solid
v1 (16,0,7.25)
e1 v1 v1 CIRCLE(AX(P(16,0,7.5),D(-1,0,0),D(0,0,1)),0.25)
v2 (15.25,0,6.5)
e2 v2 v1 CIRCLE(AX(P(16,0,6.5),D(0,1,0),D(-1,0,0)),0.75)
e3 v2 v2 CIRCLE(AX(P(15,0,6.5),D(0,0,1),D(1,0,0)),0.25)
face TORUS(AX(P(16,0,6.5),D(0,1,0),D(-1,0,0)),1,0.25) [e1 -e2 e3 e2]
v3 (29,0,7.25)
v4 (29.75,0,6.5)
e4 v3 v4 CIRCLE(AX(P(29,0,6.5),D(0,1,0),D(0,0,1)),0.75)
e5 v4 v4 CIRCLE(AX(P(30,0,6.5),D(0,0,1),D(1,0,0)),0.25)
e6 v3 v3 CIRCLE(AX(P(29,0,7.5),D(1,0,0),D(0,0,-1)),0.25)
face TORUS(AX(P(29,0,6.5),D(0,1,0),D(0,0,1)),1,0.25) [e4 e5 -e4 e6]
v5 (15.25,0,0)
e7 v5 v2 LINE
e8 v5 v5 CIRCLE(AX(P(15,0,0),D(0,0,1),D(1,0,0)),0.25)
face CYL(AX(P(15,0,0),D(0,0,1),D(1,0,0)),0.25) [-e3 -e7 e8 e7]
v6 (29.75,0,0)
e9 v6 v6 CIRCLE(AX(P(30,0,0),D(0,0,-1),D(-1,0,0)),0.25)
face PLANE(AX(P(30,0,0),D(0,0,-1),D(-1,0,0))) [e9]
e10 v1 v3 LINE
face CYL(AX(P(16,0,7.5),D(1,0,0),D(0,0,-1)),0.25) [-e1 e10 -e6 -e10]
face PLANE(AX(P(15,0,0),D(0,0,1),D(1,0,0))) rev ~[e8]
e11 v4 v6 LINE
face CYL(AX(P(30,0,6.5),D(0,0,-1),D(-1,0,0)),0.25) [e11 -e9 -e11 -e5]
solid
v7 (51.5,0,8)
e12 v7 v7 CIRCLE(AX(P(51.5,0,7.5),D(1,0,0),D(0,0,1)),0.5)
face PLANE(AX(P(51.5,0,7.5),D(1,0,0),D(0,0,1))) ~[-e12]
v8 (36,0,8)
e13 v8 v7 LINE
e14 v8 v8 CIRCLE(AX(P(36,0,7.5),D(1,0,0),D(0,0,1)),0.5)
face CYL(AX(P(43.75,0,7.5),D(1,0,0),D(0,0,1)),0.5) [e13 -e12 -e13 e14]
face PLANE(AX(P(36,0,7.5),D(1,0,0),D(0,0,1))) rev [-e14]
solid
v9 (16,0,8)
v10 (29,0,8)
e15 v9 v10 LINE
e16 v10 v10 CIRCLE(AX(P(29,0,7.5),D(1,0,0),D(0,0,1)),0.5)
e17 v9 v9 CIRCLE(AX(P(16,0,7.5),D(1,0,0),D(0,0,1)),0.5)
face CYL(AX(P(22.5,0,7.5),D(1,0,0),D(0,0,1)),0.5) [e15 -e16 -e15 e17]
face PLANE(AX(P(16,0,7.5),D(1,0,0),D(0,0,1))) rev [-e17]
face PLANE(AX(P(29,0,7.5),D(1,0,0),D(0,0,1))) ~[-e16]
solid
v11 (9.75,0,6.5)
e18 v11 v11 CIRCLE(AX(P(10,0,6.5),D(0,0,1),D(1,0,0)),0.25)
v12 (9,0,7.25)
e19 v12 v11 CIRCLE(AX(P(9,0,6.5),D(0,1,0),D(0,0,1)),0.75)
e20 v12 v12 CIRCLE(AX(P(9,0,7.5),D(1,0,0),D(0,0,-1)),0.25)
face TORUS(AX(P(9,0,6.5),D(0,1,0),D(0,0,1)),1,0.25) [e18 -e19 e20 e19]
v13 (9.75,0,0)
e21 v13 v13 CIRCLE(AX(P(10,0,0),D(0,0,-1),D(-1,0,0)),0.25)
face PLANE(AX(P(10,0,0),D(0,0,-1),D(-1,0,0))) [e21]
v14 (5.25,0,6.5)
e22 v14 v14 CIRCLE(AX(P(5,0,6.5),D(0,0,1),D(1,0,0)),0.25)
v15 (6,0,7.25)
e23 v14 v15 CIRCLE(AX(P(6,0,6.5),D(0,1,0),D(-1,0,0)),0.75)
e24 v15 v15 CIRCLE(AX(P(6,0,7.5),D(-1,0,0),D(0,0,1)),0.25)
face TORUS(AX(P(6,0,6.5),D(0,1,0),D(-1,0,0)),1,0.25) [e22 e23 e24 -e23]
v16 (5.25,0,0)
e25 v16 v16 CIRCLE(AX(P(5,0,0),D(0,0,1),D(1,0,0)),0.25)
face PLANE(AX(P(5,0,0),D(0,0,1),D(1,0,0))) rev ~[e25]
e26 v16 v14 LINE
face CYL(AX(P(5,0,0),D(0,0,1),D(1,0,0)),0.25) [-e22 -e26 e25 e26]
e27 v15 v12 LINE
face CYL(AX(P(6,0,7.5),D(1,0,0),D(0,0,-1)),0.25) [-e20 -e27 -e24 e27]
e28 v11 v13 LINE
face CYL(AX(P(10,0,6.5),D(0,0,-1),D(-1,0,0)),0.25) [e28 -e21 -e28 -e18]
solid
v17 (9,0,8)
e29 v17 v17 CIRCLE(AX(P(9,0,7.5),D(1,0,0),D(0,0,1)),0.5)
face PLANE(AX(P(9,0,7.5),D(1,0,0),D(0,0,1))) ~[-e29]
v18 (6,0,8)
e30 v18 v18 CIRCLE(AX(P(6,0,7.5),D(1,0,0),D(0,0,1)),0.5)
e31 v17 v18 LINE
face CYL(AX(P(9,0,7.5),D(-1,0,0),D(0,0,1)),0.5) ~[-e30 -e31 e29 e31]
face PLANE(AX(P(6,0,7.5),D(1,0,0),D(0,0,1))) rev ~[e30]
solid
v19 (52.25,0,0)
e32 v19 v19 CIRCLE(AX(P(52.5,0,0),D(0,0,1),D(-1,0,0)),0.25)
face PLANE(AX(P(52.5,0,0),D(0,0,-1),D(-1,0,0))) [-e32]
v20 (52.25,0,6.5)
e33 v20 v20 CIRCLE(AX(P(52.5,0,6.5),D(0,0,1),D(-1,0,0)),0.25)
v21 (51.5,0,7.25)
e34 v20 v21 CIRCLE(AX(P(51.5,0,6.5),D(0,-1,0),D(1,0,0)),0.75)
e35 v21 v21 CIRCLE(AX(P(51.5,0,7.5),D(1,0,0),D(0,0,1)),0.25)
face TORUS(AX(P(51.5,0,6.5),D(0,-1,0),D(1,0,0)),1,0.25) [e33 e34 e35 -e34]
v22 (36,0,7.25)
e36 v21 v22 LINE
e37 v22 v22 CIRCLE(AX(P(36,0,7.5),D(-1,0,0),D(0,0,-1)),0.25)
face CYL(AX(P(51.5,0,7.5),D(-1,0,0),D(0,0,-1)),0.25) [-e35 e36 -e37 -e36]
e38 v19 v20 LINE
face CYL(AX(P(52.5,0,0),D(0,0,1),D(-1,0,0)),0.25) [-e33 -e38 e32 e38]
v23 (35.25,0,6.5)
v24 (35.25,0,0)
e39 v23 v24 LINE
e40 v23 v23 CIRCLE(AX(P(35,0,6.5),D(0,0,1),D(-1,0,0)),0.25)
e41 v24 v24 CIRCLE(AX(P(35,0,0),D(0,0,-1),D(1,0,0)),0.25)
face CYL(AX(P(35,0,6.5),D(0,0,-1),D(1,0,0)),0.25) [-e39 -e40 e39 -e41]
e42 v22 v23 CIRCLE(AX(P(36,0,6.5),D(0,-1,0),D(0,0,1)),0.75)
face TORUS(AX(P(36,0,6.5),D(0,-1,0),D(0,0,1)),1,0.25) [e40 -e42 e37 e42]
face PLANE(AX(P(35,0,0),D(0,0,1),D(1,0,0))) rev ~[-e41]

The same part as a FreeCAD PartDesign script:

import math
import FreeCAD as App
import Part
import Sketcher
from FreeCAD import Vector
Q = App.Units.Quantity

doc = App.newDocument("Part")
params = doc.addObject("Spreadsheet::Sheet", "Params")
for row, (alias, value) in enumerate([
    ("sketch1_diameter", "0.5 mm"),
    ("sketch2_radius", "1 mm"),
    ("sketch2_width", "3 mm"),
    ("sketch2_height", "6.5 mm"),
    ("sketch3_diameter", "0.5 mm"),
    ("sketch4_radius", "1 mm"),
    ("sketch4_width", "13 mm"),
    ("sketch4_height", "6.5 mm"),
    ("sketch5_diameter", "0.5 mm"),
    ("sketch6_radius", "1 mm"),
    ("sketch6_width", "15.5 mm"),
    ("sketch6_height", "6.5 mm"),
    ("sketch7_width", "3 mm"),
    ("sketch7_height", "0.5 mm"),
    ("revolution_angle", "360 deg"),
    ("sketch8_width", "13 mm"),
    ("sketch8_height", "0.5 mm"),
    ("revolution2_angle", "360 deg"),
    ("sketch9_width", "15.5 mm"),
    ("sketch9_height", "0.5 mm"),
    ("revolution3_angle", "360 deg"),
], start=1):
    params.set(f"A{row}", alias)
    params.set(f"B{row}", "=" + value)
    params.setAlias(f"B{row}", alias)

body = doc.addObject("PartDesign::Body", "Body")

# Sketch on XY plane
sketch1 = body.newObject("Sketcher::SketchObject", "Sketch")
sketch1.AttachmentSupport = (doc.getObject("XY_Plane"), [""])
sketch1.MapMode = "FlatFace"
sketch1.addGeometry(Part.Circle(Vector(5, 0, 0), Vector(0, 0, 1), 0.25), False)
sketch1.addConstraint([
    Sketcher.Constraint("PointOnObject", 0, 3, -1),
    Sketcher.Constraint("Diameter", 0, Q("0.5 mm")),
    Sketcher.Constraint("DistanceX", -1, 1, 0, 3, Q("5 mm")),
])
sketch1.setExpression("Constraints[1]", "Params.sketch1_diameter")

# Sketch on XZ plane
sketch2 = body.newObject("Sketcher::SketchObject", "Sketch001")
sketch2.AttachmentSupport = (doc.getObject("XZ_Plane"), [""])
sketch2.MapMode = "FlatFace"
sketch2.addGeometry([
    Part.LineSegment(Vector(5, 0, 0), Vector(5, 6.5, 0)),  # 0
    Part.ArcOfCircle(Part.Circle(Vector(6, 6.5, 0), Vector(0, 0, 1), 1), math.radians(90), math.radians(180)),  # 1
    Part.LineSegment(Vector(6, 7.5, 0), Vector(9, 7.5, 0)),  # 2
    Part.ArcOfCircle(Part.Circle(Vector(9, 6.5, 0), Vector(0, 0, 1), 1), math.radians(0), math.radians(90)),  # 3
    Part.LineSegment(Vector(10, 6.5, 0), Vector(10, 0, 0)),  # 4
], False)
sketch2.addConstraint([
    Sketcher.Constraint("Tangent", 0, 2, 1, 2),
    Sketcher.Constraint("Tangent", 1, 1, 2, 1),
    Sketcher.Constraint("Tangent", 2, 2, 3, 2),
    Sketcher.Constraint("Tangent", 3, 1, 4, 1),
    Sketcher.Constraint("Vertical", 0),
    Sketcher.Constraint("Horizontal", 2),
    Sketcher.Constraint("Vertical", 4),
    Sketcher.Constraint("Equal", 1, 3),
    Sketcher.Constraint("PointOnObject", 0, 1, -1),
    Sketcher.Constraint("PointOnObject", 4, 2, -1),
    Sketcher.Constraint("Radius", 1, Q("1 mm")),
    Sketcher.Constraint("DistanceX", 2, 1, 2, 2, Q("3 mm")),
    Sketcher.Constraint("DistanceY", 0, 1, 0, 2, Q("6.5 mm")),
    Sketcher.Constraint("DistanceX", -1, 1, 1, 3, Q("6 mm")),
])
sketch2.setExpression("Constraints[10]", "Params.sketch2_radius")
sketch2.setExpression("Constraints[11]", "Params.sketch2_width")
sketch2.setExpression("Constraints[12]", "Params.sketch2_height")
doc.recompute()

additivepipe = body.newObject("PartDesign::AdditivePipe", "AdditivePipe")
additivepipe.Profile = sketch1
additivepipe.Spine = (sketch2, ["Edge1", "Edge2", "Edge3", "Edge4", "Edge5"])
body2 = doc.addObject("PartDesign::Body", "Body001")

# Sketch on XY plane
sketch3 = body2.newObject("Sketcher::SketchObject", "Sketch002")
sketch3.AttachmentSupport = (doc.getObject("XY_Plane001"), [""])
sketch3.MapMode = "FlatFace"
sketch3.addGeometry(Part.Circle(Vector(15, 0, 0), Vector(0, 0, 1), 0.25), False)
sketch3.addConstraint([
    Sketcher.Constraint("PointOnObject", 0, 3, -1),
    Sketcher.Constraint("Diameter", 0, Q("0.5 mm")),
    Sketcher.Constraint("DistanceX", -1, 1, 0, 3, Q("15 mm")),
])
sketch3.setExpression("Constraints[1]", "Params.sketch3_diameter")

# Sketch on XZ plane
sketch4 = body2.newObject("Sketcher::SketchObject", "Sketch003")
sketch4.AttachmentSupport = (doc.getObject("XZ_Plane001"), [""])
sketch4.MapMode = "FlatFace"
sketch4.addGeometry([
    Part.LineSegment(Vector(15, 0, 0), Vector(15, 6.5, 0)),  # 0
    Part.ArcOfCircle(Part.Circle(Vector(16, 6.5, 0), Vector(0, 0, 1), 1), math.radians(90), math.radians(180)),  # 1
    Part.LineSegment(Vector(16, 7.5, 0), Vector(29, 7.5, 0)),  # 2
    Part.ArcOfCircle(Part.Circle(Vector(29, 6.5, 0), Vector(0, 0, 1), 1), math.radians(0), math.radians(90)),  # 3
    Part.LineSegment(Vector(30, 6.5, 0), Vector(30, 0, 0)),  # 4
], False)
sketch4.addConstraint([
    Sketcher.Constraint("Tangent", 0, 2, 1, 2),
    Sketcher.Constraint("Tangent", 1, 1, 2, 1),
    Sketcher.Constraint("Tangent", 2, 2, 3, 2),
    Sketcher.Constraint("Tangent", 3, 1, 4, 1),
    Sketcher.Constraint("Vertical", 0),
    Sketcher.Constraint("Horizontal", 2),
    Sketcher.Constraint("Vertical", 4),
    Sketcher.Constraint("Equal", 1, 3),
    Sketcher.Constraint("PointOnObject", 0, 1, -1),
    Sketcher.Constraint("PointOnObject", 4, 2, -1),
    Sketcher.Constraint("Radius", 1, Q("1 mm")),
    Sketcher.Constraint("DistanceX", 2, 1, 2, 2, Q("13 mm")),
    Sketcher.Constraint("DistanceY", 0, 1, 0, 2, Q("6.5 mm")),
    Sketcher.Constraint("DistanceX", -1, 1, 1, 3, Q("16 mm")),
])
sketch4.setExpression("Constraints[10]", "Params.sketch4_radius")
sketch4.setExpression("Constraints[11]", "Params.sketch4_width")
sketch4.setExpression("Constraints[12]", "Params.sketch4_height")
doc.recompute()

additivepipe2 = body2.newObject("PartDesign::AdditivePipe", "AdditivePipe001")
additivepipe2.Profile = sketch3
additivepipe2.Spine = (sketch4, ["Edge1", "Edge2", "Edge3", "Edge4", "Edge5"])
body3 = doc.addObject("PartDesign::Body", "Body002")

# Sketch on XY plane
sketch5 = body3.newObject("Sketcher::SketchObject", "Sketch004")
sketch5.AttachmentSupport = (doc.getObject("XY_Plane002"), [""])
sketch5.MapMode = "FlatFace"
sketch5.addGeometry(Part.Circle(Vector(35, 0, 0), Vector(0, 0, 1), 0.25), False)
sketch5.addConstraint([
    Sketcher.Constraint("PointOnObject", 0, 3, -1),
    Sketcher.Constraint("Diameter", 0, Q("0.5 mm")),
    Sketcher.Constraint("DistanceX", -1, 1, 0, 3, Q("35 mm")),
])
sketch5.setExpression("Constraints[1]", "Params.sketch5_diameter")

# Sketch on XZ plane
sketch6 = body3.newObject("Sketcher::SketchObject", "Sketch005")
sketch6.AttachmentSupport = (doc.getObject("XZ_Plane002"), [""])
sketch6.MapMode = "FlatFace"
sketch6.addGeometry([
    Part.LineSegment(Vector(52.5, 0, 0), Vector(52.5, 6.5, 0)),  # 0
    Part.ArcOfCircle(Part.Circle(Vector(51.5, 6.5, 0), Vector(0, 0, 1), 1), math.radians(0), math.radians(90)),  # 1
    Part.LineSegment(Vector(51.5, 7.5, 0), Vector(36, 7.5, 0)),  # 2
    Part.ArcOfCircle(Part.Circle(Vector(36, 6.5, 0), Vector(0, 0, 1), 1), math.radians(90), math.radians(180)),  # 3
    Part.LineSegment(Vector(35, 6.5, 0), Vector(35, 0, 0)),  # 4
], False)
sketch6.addConstraint([
    Sketcher.Constraint("Tangent", 0, 2, 1, 1),
    Sketcher.Constraint("Tangent", 1, 2, 2, 1),
    Sketcher.Constraint("Tangent", 2, 2, 3, 1),
    Sketcher.Constraint("Tangent", 3, 2, 4, 1),
    Sketcher.Constraint("Vertical", 0),
    Sketcher.Constraint("Horizontal", 2),
    Sketcher.Constraint("Vertical", 4),
    Sketcher.Constraint("Equal", 1, 3),
    Sketcher.Constraint("PointOnObject", 0, 1, -1),
    Sketcher.Constraint("PointOnObject", 4, 2, -1),
    Sketcher.Constraint("Radius", 1, Q("1 mm")),
    Sketcher.Constraint("DistanceX", 2, 2, 2, 1, Q("15.5 mm")),
    Sketcher.Constraint("DistanceY", 0, 1, 0, 2, Q("6.5 mm")),
    Sketcher.Constraint("DistanceX", -1, 1, 3, 3, Q("36 mm")),
])
sketch6.setExpression("Constraints[10]", "Params.sketch6_radius")
sketch6.setExpression("Constraints[11]", "Params.sketch6_width")
sketch6.setExpression("Constraints[12]", "Params.sketch6_height")
doc.recompute()

additivepipe3 = body3.newObject("PartDesign::AdditivePipe", "AdditivePipe002")
additivepipe3.Profile = sketch5
additivepipe3.Spine = (sketch6, ["Edge1", "Edge2", "Edge3", "Edge4", "Edge5"])
body4 = doc.addObject("PartDesign::Body", "Body003")

# Sketch on XZ plane
sketch7 = body4.newObject("Sketcher::SketchObject", "Sketch006")
sketch7.AttachmentSupport = (doc.getObject("XZ_Plane003"), [""])
sketch7.MapMode = "FlatFace"
sketch7.addGeometry([
    Part.LineSegment(Vector(6, 8, 0), Vector(6, 7.5, 0)),
    Part.LineSegment(Vector(6, 7.5, 0), Vector(9, 7.5, 0)),
    Part.LineSegment(Vector(9, 7.5, 0), Vector(9, 8, 0)),
    Part.LineSegment(Vector(9, 8, 0), Vector(6, 8, 0)),
], False)
sketch7.addGeometry(Part.LineSegment(Vector(6, 7.5, 0), Vector(9, 7.5, 0)), True)  # axis
sketch7.addConstraint([
    Sketcher.Constraint("Coincident", 0, 2, 1, 1),
    Sketcher.Constraint("Coincident", 1, 2, 2, 1),
    Sketcher.Constraint("Coincident", 2, 2, 3, 1),
    Sketcher.Constraint("Coincident", 3, 2, 0, 1),
    Sketcher.Constraint("Vertical", 0),
    Sketcher.Constraint("Horizontal", 1),
    Sketcher.Constraint("Vertical", 2),
    Sketcher.Constraint("Horizontal", 3),
    Sketcher.Constraint("Horizontal", 4),
    Sketcher.Constraint("Coincident", 4, 1, 0, 2),
    Sketcher.Constraint("Vertical", 2, 2, 4, 2),
    Sketcher.Constraint("DistanceX", 1, 1, 1, 2, Q("3 mm")),
    Sketcher.Constraint("DistanceY", 0, 2, 0, 1, Q("0.5 mm")),
    Sketcher.Constraint("DistanceX", -1, 1, 0, 2, Q("6 mm")),
    Sketcher.Constraint("DistanceY", -1, 1, 2, 2, Q("8 mm")),
])
sketch7.setExpression("Constraints[11]", "Params.sketch7_width")
sketch7.setExpression("Constraints[12]", "Params.sketch7_height")
revolution = body4.newObject("PartDesign::Revolution", "Revolution")
revolution.Profile = sketch7
revolution.ReferenceAxis = (sketch7, ["Axis0"])
revolution.setExpression("Angle", "Params.revolution_angle")
body5 = doc.addObject("PartDesign::Body", "Body004")

# Sketch on XZ plane
sketch8 = body5.newObject("Sketcher::SketchObject", "Sketch007")
sketch8.AttachmentSupport = (doc.getObject("XZ_Plane004"), [""])
sketch8.MapMode = "FlatFace"
sketch8.addGeometry([
    Part.LineSegment(Vector(16, 8, 0), Vector(16, 7.5, 0)),
    Part.LineSegment(Vector(16, 7.5, 0), Vector(29, 7.5, 0)),
    Part.LineSegment(Vector(29, 7.5, 0), Vector(29, 8, 0)),
    Part.LineSegment(Vector(29, 8, 0), Vector(16, 8, 0)),
], False)
sketch8.addGeometry(Part.LineSegment(Vector(16, 7.5, 0), Vector(29, 7.5, 0)), True)  # axis
sketch8.addConstraint([
    Sketcher.Constraint("Coincident", 0, 2, 1, 1),
    Sketcher.Constraint("Coincident", 1, 2, 2, 1),
    Sketcher.Constraint("Coincident", 2, 2, 3, 1),
    Sketcher.Constraint("Coincident", 3, 2, 0, 1),
    Sketcher.Constraint("Vertical", 0),
    Sketcher.Constraint("Horizontal", 1),
    Sketcher.Constraint("Vertical", 2),
    Sketcher.Constraint("Horizontal", 3),
    Sketcher.Constraint("Horizontal", 4),
    Sketcher.Constraint("Coincident", 4, 1, 0, 2),
    Sketcher.Constraint("Vertical", 2, 2, 4, 2),
    Sketcher.Constraint("DistanceX", 1, 1, 1, 2, Q("13 mm")),
    Sketcher.Constraint("DistanceY", 0, 2, 0, 1, Q("0.5 mm")),
    Sketcher.Constraint("DistanceX", -1, 1, 0, 2, Q("16 mm")),
    Sketcher.Constraint("DistanceY", -1, 1, 2, 2, Q("8 mm")),
])
sketch8.setExpression("Constraints[11]", "Params.sketch8_width")
sketch8.setExpression("Constraints[12]", "Params.sketch8_height")
revolution2 = body5.newObject("PartDesign::Revolution", "Revolution001")
revolution2.Profile = sketch8
revolution2.ReferenceAxis = (sketch8, ["Axis0"])
revolution2.setExpression("Angle", "Params.revolution2_angle")
body6 = doc.addObject("PartDesign::Body", "Body005")

# Sketch on XZ plane
sketch9 = body6.newObject("Sketcher::SketchObject", "Sketch008")
sketch9.AttachmentSupport = (doc.getObject("XZ_Plane005"), [""])
sketch9.MapMode = "FlatFace"
sketch9.addGeometry([
    Part.LineSegment(Vector(36, 8, 0), Vector(36, 7.5, 0)),
    Part.LineSegment(Vector(36, 7.5, 0), Vector(51.5, 7.5, 0)),
    Part.LineSegment(Vector(51.5, 7.5, 0), Vector(51.5, 8, 0)),
    Part.LineSegment(Vector(51.5, 8, 0), Vector(36, 8, 0)),
], False)
sketch9.addGeometry(Part.LineSegment(Vector(36, 7.5, 0), Vector(51.5, 7.5, 0)), True)  # axis
sketch9.addConstraint([
    Sketcher.Constraint("Coincident", 0, 2, 1, 1),
    Sketcher.Constraint("Coincident", 1, 2, 2, 1),
    Sketcher.Constraint("Coincident", 2, 2, 3, 1),
    Sketcher.Constraint("Coincident", 3, 2, 0, 1),
    Sketcher.Constraint("Vertical", 0),
    Sketcher.Constraint("Horizontal", 1),
    Sketcher.Constraint("Vertical", 2),
    Sketcher.Constraint("Horizontal", 3),
    Sketcher.Constraint("Horizontal", 4),
    Sketcher.Constraint("Coincident", 4, 1, 0, 2),
    Sketcher.Constraint("Vertical", 2, 2, 4, 2),
    Sketcher.Constraint("DistanceX", 1, 1, 1, 2, Q("15.5 mm")),
    Sketcher.Constraint("DistanceY", 0, 2, 0, 1, Q("0.5 mm")),
    Sketcher.Constraint("DistanceX", -1, 1, 0, 2, Q("36 mm")),
    Sketcher.Constraint("DistanceY", -1, 1, 2, 2, Q("8 mm")),
])
sketch9.setExpression("Constraints[11]", "Params.sketch9_width")
sketch9.setExpression("Constraints[12]", "Params.sketch9_height")
revolution3 = body6.newObject("PartDesign::Revolution", "Revolution002")
revolution3.Profile = sketch9
revolution3.ReferenceAxis = (sketch9, ["Axis0"])
revolution3.setExpression("Angle", "Params.revolution3_angle")

doc.recompute()
